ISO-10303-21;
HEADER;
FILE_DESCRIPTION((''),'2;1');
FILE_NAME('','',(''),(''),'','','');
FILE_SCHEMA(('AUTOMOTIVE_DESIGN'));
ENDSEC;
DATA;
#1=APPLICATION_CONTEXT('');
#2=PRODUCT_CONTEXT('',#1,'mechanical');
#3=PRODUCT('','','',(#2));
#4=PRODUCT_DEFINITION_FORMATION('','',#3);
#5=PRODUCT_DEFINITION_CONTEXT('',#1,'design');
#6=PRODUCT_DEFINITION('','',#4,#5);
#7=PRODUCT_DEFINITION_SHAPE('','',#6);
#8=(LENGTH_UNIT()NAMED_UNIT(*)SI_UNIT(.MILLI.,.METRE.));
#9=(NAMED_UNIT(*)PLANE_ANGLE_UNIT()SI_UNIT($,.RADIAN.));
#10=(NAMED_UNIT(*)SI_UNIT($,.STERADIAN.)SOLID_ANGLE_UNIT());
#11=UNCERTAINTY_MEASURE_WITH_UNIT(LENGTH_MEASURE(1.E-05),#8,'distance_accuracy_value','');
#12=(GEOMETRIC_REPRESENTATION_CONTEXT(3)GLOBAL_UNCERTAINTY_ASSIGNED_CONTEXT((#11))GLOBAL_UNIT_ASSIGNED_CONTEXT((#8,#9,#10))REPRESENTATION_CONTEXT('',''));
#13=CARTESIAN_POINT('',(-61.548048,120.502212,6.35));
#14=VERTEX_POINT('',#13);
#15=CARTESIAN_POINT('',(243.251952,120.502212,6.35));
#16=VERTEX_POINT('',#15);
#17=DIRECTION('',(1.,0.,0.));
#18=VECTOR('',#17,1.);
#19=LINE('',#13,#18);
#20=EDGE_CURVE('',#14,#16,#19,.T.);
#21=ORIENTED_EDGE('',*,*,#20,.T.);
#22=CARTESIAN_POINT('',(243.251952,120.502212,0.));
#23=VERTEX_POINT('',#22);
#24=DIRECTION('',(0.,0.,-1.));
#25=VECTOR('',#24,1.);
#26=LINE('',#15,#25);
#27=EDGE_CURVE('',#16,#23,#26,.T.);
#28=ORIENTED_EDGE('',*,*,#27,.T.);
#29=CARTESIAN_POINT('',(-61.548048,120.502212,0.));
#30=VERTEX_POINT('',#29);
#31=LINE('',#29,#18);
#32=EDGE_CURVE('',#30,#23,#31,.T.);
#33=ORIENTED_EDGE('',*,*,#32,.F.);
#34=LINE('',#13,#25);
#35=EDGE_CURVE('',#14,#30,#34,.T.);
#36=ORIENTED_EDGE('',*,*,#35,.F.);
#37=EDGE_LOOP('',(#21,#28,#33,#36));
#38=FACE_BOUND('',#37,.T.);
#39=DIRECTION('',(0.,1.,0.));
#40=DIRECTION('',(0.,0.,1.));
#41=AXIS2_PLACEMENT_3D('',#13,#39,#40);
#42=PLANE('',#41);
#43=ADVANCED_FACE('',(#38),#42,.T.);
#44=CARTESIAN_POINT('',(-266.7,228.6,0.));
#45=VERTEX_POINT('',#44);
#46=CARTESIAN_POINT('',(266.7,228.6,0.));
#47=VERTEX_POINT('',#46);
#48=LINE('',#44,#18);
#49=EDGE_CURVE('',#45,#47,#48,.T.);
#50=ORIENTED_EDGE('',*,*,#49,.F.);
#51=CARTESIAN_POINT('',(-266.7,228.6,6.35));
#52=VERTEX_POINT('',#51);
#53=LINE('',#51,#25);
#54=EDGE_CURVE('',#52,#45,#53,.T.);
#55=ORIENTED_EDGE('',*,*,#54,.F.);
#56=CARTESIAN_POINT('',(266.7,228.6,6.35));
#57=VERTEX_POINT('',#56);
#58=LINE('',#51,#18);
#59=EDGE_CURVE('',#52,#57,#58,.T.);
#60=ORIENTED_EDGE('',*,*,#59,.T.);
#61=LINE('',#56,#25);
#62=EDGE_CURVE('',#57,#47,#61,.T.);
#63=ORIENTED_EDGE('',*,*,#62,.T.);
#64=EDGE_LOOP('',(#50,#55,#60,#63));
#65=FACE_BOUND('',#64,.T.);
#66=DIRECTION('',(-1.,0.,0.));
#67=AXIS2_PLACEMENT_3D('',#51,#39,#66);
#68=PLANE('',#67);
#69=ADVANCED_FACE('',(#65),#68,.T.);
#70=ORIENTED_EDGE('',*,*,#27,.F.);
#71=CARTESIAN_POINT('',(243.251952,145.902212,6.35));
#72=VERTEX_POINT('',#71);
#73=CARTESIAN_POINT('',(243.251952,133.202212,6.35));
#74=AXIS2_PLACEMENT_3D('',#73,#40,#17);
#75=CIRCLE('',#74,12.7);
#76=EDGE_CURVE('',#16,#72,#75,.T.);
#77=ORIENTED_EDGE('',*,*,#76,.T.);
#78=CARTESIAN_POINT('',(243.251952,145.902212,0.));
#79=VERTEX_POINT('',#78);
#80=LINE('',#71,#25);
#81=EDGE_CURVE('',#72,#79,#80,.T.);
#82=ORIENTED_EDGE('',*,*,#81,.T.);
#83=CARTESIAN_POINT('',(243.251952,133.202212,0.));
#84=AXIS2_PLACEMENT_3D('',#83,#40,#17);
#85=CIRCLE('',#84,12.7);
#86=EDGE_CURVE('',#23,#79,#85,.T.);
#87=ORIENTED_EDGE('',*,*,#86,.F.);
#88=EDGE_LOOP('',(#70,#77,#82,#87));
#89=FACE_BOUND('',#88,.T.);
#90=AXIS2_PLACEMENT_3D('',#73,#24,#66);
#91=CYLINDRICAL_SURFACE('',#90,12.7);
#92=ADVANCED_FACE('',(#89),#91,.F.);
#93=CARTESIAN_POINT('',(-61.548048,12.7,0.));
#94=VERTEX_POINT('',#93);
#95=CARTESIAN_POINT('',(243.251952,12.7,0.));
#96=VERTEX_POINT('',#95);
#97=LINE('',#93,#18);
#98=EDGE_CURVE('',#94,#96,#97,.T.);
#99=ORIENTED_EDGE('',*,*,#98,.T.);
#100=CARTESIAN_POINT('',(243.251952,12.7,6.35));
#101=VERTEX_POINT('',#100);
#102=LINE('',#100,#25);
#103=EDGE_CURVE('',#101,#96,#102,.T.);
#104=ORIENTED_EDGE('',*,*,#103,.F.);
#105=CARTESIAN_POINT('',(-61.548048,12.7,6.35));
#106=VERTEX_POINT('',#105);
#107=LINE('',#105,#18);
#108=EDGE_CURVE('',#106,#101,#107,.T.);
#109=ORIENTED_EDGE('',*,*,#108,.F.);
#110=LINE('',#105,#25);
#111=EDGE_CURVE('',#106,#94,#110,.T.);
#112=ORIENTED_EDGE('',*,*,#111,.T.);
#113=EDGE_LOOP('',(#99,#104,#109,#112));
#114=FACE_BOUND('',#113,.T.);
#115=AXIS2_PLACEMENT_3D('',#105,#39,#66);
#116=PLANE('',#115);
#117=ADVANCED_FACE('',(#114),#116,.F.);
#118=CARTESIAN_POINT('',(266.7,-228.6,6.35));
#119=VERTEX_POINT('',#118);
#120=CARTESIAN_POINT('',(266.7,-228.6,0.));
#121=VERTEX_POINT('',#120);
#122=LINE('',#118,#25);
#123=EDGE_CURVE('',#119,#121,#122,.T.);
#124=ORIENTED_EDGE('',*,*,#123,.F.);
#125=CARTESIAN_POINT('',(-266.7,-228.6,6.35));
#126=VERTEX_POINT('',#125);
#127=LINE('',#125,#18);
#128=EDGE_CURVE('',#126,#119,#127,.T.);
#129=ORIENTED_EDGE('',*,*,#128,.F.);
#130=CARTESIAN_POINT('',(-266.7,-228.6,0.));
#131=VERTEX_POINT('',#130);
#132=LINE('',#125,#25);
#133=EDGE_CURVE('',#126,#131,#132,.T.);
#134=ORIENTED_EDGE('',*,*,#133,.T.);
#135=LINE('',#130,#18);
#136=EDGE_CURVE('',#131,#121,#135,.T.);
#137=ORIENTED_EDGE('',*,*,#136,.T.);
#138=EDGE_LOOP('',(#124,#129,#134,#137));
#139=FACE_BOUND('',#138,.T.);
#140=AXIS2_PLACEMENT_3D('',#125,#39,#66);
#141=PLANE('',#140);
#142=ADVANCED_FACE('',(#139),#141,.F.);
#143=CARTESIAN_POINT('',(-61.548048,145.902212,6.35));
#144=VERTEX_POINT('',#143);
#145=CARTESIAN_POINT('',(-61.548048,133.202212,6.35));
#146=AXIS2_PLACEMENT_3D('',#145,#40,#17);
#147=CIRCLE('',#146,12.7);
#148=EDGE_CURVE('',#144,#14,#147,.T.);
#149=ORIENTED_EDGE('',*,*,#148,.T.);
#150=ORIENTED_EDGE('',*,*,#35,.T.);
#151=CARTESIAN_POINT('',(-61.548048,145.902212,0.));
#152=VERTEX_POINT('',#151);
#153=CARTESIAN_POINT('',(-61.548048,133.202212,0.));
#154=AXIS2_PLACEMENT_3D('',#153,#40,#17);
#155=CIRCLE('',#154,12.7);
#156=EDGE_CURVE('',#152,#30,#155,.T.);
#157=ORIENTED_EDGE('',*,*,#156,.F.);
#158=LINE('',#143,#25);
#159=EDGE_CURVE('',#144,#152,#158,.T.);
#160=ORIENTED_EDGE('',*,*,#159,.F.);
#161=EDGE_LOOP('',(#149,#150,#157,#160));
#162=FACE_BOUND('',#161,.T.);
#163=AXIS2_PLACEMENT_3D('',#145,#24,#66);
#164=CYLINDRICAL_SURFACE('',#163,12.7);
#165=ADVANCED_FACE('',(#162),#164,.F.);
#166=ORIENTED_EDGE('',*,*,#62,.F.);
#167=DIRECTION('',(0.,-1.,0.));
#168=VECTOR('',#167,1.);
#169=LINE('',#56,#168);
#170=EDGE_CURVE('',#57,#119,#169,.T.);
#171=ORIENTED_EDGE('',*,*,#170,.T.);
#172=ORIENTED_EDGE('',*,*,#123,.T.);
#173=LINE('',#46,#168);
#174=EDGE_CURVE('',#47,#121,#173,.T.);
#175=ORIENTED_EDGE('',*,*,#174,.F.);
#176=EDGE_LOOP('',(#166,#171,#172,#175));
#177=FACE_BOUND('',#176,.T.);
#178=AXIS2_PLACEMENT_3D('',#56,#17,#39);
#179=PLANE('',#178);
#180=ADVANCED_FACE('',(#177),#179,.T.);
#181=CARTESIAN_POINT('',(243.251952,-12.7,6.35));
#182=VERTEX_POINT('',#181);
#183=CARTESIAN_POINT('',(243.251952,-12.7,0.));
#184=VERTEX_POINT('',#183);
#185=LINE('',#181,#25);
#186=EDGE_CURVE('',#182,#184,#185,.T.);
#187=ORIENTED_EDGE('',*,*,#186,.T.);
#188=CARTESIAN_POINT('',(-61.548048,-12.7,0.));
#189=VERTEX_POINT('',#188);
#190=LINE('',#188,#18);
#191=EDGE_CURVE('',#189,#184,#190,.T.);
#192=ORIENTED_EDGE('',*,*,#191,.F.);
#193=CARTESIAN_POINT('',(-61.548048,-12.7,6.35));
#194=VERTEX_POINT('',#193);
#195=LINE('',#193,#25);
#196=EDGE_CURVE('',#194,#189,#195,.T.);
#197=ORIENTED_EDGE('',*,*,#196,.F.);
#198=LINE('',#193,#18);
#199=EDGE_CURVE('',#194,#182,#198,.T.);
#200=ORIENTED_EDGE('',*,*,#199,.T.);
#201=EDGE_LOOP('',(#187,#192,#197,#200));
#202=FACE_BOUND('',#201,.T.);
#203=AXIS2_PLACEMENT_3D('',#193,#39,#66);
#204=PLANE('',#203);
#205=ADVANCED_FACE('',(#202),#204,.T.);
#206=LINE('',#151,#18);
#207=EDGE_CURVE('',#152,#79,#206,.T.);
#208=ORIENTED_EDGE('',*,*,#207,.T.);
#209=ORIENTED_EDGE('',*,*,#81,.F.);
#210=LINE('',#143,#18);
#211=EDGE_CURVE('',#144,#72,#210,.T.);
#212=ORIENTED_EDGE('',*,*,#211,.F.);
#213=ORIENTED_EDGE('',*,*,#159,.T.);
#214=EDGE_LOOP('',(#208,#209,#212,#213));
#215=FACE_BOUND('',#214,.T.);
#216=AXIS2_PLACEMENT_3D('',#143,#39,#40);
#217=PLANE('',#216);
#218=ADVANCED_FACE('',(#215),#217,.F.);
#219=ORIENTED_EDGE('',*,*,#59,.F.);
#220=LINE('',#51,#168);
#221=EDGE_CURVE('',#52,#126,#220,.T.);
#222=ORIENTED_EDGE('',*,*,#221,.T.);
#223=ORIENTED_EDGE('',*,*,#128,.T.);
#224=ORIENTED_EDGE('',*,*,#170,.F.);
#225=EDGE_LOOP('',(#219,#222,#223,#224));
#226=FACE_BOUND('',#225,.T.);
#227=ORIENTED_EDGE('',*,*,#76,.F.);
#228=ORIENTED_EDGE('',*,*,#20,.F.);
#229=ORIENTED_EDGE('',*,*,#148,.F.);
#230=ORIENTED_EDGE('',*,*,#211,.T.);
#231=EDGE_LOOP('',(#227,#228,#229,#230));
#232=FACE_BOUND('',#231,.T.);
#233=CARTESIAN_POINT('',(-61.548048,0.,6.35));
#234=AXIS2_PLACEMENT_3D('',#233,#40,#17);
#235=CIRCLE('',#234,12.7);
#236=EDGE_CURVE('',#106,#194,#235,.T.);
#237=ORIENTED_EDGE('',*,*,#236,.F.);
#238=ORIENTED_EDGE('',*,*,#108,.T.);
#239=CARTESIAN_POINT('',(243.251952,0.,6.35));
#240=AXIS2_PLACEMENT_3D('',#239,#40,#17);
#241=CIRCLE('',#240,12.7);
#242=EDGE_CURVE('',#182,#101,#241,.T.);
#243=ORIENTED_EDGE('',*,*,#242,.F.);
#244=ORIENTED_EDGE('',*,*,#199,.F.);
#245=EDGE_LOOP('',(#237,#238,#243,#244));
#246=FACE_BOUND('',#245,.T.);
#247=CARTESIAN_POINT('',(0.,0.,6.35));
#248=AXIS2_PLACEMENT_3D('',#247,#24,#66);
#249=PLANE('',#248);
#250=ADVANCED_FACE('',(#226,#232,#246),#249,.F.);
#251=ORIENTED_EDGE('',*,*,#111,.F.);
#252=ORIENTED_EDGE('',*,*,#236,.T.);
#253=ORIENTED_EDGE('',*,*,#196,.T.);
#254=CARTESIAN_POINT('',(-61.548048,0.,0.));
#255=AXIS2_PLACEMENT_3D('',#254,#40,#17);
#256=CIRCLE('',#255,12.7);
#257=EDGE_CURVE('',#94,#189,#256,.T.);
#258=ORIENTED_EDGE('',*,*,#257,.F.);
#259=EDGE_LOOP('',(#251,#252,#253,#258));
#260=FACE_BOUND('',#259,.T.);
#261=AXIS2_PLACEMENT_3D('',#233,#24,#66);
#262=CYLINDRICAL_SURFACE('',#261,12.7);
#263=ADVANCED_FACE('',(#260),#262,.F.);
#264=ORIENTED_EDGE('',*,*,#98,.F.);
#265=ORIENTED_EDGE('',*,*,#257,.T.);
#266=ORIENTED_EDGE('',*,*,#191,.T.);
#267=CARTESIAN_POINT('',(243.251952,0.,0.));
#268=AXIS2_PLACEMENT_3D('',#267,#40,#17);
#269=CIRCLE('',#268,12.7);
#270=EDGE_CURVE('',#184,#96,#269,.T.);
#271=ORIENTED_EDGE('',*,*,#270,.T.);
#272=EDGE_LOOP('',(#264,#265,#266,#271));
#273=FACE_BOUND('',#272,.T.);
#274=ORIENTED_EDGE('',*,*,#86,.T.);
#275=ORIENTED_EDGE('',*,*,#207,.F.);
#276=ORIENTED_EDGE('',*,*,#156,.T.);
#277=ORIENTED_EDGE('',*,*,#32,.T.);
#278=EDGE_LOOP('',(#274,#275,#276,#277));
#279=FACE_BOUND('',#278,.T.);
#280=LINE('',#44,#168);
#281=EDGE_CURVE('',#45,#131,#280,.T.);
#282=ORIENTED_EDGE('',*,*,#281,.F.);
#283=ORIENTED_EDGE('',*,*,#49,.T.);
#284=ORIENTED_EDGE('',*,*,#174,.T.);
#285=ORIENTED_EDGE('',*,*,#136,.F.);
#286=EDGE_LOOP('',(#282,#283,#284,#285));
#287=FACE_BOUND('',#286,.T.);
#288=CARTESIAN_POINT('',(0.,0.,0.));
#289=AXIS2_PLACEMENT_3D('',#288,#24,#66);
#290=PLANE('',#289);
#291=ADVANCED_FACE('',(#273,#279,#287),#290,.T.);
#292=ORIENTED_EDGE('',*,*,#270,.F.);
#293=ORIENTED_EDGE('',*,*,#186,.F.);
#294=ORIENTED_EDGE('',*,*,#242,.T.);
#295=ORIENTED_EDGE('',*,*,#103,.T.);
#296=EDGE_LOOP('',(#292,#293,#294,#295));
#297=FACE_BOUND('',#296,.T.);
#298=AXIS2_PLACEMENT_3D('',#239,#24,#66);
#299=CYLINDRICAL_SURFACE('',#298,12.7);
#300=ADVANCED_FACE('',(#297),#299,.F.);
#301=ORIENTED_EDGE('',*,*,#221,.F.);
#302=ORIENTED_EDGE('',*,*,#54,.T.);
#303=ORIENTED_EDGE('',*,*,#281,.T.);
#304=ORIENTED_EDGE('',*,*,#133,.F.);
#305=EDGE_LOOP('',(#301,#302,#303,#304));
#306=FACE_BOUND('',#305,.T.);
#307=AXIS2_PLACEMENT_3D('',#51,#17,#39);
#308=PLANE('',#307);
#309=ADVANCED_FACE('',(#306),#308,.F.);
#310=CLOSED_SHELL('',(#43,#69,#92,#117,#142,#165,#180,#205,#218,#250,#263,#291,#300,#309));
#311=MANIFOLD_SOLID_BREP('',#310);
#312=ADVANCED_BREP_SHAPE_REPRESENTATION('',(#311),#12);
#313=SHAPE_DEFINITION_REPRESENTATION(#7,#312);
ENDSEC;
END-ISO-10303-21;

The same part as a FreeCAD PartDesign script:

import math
import FreeCAD as App
import Part
import Sketcher

V = App.Vector
Q = App.Units.Quantity

doc = App.newDocument("Part")
body = doc.addObject("PartDesign::Body", "Body")

sketch1 = doc.addObject("Sketcher::SketchObject", "Sketch")
body.addObject(sketch1)
sketch1.AttachmentSupport = (doc.XY_Plane, [""])
sketch1.MapMode = "FlatFace"
sketch1.addGeometry([
    Part.LineSegment(V(-267, 229, 0), V(-267, -229, 0)),
    Part.LineSegment(V(-267, -229, 0), V(267, -229, 0)),
    Part.LineSegment(V(267, -229, 0), V(267, 229, 0)),
    Part.LineSegment(V(267, 229, 0), V(-267, 229, 0)),
    Part.ArcOfCircle(Part.Circle(V(-62, 0, 0), V(0, 0, 1), 13), math.radians(90), math.radians(270)),
    Part.LineSegment(V(-62, 13, 0), V(243, 13, 0)),
    Part.ArcOfCircle(Part.Circle(V(243, 0, 0), V(0, 0, 1), 13), math.radians(-90), math.radians(90)),
    Part.LineSegment(V(243, -13, 0), V(-62, -13, 0)),
    Part.ArcOfCircle(Part.Circle(V(-62, 133, 0), V(0, 0, 1), 13), math.radians(90), math.radians(270)),
    Part.LineSegment(V(-62, 146, 0), V(243, 146, 0)),
    Part.ArcOfCircle(Part.Circle(V(243, 133, 0), V(0, 0, 1), 13), math.radians(-90), math.radians(90)),
    Part.LineSegment(V(243, 121, 0), V(-62, 121, 0)),
], False)
sketch1.addConstraint([
    Sketcher.Constraint("Coincident", 0, 2, 1, 1),
    Sketcher.Constraint("Coincident", 1, 2, 2, 1),
    Sketcher.Constraint("Coincident", 2, 2, 3, 1),
    Sketcher.Constraint("Coincident", 3, 2, 0, 1),
    Sketcher.Constraint("Tangent", 4, 1, 5, 1),
    Sketcher.Constraint("Tangent", 5, 2, 6, 2),
    Sketcher.Constraint("Tangent", 6, 1, 7, 1),
    Sketcher.Constraint("Tangent", 7, 2, 4, 2),
    Sketcher.Constraint("Tangent", 8, 1, 9, 1),
    Sketcher.Constraint("Tangent", 9, 2, 10, 2),
    Sketcher.Constraint("Tangent", 10, 1, 11, 1),
    Sketcher.Constraint("Tangent", 11, 2, 8, 2),
    Sketcher.Constraint("Vertical", 0),
    Sketcher.Constraint("Horizontal", 1),
    Sketcher.Constraint("Vertical", 2),
    Sketcher.Constraint("Horizontal", 3),
    Sketcher.Constraint("Horizontal", 5),
    Sketcher.Constraint("Horizontal", 7),
    Sketcher.Constraint("Horizontal", 9),
    Sketcher.Constraint("Horizontal", 11),
    Sketcher.Constraint("Equal", 6, 8),
    Sketcher.Constraint("Symmetric", 0, 2, 2, 2, -1, 1),
    Sketcher.Constraint("PointOnObject", 4, 3, -1),
    Sketcher.Constraint("Vertical", 4, 3, 8, 3),
    Sketcher.Constraint("Vertical", 6, 3, 10, 3),
    Sketcher.Constraint("Radius", 4, Q("0.5 in")),
    Sketcher.Constraint("DistanceX", 1, 1, 1, 2, Q("21 in")),
    Sketcher.Constraint("DistanceX", 5, 1, 5, 2, Q("12 in")),
    Sketcher.Constraint("DistanceY", 0, 2, 0, 1, Q("18 in")),
    Sketcher.Constraint("DistanceY", -1, 1, 8, 3, 133.202212),
    Sketcher.Constraint("DistanceX", 4, 3, -1, 1, 61.548048),
])
pad1 = doc.addObject("PartDesign::Pad", "Pad")
body.addObject(pad1)
pad1.Profile = sketch1
pad1.Length = Q("0.25 in")

doc.recompute()
